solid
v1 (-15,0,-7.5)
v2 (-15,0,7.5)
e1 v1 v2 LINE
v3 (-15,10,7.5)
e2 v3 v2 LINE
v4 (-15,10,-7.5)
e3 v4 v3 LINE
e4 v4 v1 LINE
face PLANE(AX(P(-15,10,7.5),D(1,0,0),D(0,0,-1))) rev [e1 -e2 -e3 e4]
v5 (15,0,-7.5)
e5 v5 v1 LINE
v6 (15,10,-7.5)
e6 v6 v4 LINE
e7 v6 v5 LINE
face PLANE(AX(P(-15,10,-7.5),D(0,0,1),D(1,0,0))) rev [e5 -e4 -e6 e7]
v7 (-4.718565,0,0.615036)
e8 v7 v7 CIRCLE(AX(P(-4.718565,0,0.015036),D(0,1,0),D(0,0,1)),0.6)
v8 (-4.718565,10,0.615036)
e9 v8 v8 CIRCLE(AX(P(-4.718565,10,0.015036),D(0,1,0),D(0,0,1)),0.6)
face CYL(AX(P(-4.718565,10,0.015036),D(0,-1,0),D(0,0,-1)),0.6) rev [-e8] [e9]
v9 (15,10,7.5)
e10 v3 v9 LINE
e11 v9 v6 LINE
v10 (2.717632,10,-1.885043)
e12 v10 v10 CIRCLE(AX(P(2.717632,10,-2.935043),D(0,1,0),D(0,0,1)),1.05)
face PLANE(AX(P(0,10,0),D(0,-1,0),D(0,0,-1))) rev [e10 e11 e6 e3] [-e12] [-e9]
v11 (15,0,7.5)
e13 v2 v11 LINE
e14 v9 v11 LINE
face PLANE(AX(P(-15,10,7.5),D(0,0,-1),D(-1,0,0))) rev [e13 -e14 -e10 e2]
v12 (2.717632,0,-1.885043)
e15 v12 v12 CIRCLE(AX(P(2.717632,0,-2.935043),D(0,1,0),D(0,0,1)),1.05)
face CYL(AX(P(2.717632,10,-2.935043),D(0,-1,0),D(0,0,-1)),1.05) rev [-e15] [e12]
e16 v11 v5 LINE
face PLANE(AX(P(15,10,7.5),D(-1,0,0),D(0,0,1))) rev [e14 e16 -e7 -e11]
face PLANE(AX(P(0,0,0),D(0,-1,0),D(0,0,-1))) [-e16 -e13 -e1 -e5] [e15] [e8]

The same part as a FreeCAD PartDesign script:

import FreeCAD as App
import Part
import Sketcher
Q = App.Units.Quantity


def add_polygon(sketch, points):
    """Adds a closed chain of lines whose ends are joined by coincident constraints."""
    first, n = sketch.GeometryCount, len(points)
    for a, b in zip(points, points[1:] + points[:1]):
        sketch.addGeometry(Part.LineSegment(App.Vector(*a, 0), App.Vector(*b, 0)), False)
    for i in range(n):
        sketch.addConstraint(Sketcher.Constraint("Coincident", first + i, 2, first + (i + 1) % n, 1))

doc = App.newDocument("Part")
params = doc.addObject("Spreadsheet::Sheet", "Params")
for row, (alias, value) in enumerate([
    ("sketch1_diameter", "1.2 mm"),
    ("sketch1_diameter2", "2.1 mm"),
    ("sketch1_width", "30 mm"),
    ("sketch1_height", "15 mm"),
    ("pad1_length", "10 mm"),
], start=1):
    params.set(f"A{row}", alias)
    params.set(f"B{row}", "=" + value)
    params.setAlias(f"B{row}", alias)

body = doc.addObject("PartDesign::Body", "Body")

# Sketch on XZ plane
sketch1 = doc.addObject("Sketcher::SketchObject", "Sketch")
body.addObject(sketch1)
sketch1.AttachmentSupport = (doc.XZ_Plane, [""])
sketch1.MapMode = "FlatFace"
add_polygon(sketch1, [(-15, -7.5), (-15, 7.5), (15, 7.5), (15, -7.5)])  # lines 0-3
sketch1.addGeometry(Part.Circle(App.Vector(-4.7, 0, 0), App.Vector(0, 0, 1), 0.6), False)  # 4
sketch1.addGeometry(Part.Circle(App.Vector(2.7, -2.9, 0), App.Vector(0, 0, 1), 1.1), False)  # 5
sketch1.addConstraint([
    Sketcher.Constraint("Vertical", 0),
    Sketcher.Constraint("Horizontal", 1),
    Sketcher.Constraint("Vertical", 2),
    Sketcher.Constraint("Horizontal", 3),
    Sketcher.Constraint("Symmetric", 0, 2, 2, 2, -1, 1),
    Sketcher.Constraint("Diameter", 4, Q("1.2 mm")),
    Sketcher.Constraint("Diameter", 5, Q("2.1 mm")),
    Sketcher.Constraint("DistanceX", 1, 1, 1, 2, Q("30 mm")),
    Sketcher.Constraint("DistanceY", 0, 1, 0, 2, Q("15 mm")),
    Sketcher.Constraint("DistanceY", 5, 3, 4, 3, Q("2.950079 mm")),
    Sketcher.Constraint("DistanceX", 4, 3, -1, 1, Q("4.718565 mm")),
    Sketcher.Constraint("DistanceY", -1, 1, 4, 3, Q("0.015036 mm")),
    Sketcher.Constraint("DistanceX", -1, 1, 5, 3, Q("2.717632 mm")),
])
sketch1.setExpression("Constraints[9]", "Params.sketch1_diameter")
sketch1.setExpression("Constraints[10]", "Params.sketch1_diameter2")
sketch1.setExpression("Constraints[11]", "Params.sketch1_width")
sketch1.setExpression("Constraints[12]", "Params.sketch1_height")
pad1 = doc.addObject("PartDesign::Pad", "Pad")
body.addObject(pad1)
pad1.Profile = sketch1
pad1.setExpression("Length", "Params.pad1_length")
pad1.Reversed = True

doc.recompute()
